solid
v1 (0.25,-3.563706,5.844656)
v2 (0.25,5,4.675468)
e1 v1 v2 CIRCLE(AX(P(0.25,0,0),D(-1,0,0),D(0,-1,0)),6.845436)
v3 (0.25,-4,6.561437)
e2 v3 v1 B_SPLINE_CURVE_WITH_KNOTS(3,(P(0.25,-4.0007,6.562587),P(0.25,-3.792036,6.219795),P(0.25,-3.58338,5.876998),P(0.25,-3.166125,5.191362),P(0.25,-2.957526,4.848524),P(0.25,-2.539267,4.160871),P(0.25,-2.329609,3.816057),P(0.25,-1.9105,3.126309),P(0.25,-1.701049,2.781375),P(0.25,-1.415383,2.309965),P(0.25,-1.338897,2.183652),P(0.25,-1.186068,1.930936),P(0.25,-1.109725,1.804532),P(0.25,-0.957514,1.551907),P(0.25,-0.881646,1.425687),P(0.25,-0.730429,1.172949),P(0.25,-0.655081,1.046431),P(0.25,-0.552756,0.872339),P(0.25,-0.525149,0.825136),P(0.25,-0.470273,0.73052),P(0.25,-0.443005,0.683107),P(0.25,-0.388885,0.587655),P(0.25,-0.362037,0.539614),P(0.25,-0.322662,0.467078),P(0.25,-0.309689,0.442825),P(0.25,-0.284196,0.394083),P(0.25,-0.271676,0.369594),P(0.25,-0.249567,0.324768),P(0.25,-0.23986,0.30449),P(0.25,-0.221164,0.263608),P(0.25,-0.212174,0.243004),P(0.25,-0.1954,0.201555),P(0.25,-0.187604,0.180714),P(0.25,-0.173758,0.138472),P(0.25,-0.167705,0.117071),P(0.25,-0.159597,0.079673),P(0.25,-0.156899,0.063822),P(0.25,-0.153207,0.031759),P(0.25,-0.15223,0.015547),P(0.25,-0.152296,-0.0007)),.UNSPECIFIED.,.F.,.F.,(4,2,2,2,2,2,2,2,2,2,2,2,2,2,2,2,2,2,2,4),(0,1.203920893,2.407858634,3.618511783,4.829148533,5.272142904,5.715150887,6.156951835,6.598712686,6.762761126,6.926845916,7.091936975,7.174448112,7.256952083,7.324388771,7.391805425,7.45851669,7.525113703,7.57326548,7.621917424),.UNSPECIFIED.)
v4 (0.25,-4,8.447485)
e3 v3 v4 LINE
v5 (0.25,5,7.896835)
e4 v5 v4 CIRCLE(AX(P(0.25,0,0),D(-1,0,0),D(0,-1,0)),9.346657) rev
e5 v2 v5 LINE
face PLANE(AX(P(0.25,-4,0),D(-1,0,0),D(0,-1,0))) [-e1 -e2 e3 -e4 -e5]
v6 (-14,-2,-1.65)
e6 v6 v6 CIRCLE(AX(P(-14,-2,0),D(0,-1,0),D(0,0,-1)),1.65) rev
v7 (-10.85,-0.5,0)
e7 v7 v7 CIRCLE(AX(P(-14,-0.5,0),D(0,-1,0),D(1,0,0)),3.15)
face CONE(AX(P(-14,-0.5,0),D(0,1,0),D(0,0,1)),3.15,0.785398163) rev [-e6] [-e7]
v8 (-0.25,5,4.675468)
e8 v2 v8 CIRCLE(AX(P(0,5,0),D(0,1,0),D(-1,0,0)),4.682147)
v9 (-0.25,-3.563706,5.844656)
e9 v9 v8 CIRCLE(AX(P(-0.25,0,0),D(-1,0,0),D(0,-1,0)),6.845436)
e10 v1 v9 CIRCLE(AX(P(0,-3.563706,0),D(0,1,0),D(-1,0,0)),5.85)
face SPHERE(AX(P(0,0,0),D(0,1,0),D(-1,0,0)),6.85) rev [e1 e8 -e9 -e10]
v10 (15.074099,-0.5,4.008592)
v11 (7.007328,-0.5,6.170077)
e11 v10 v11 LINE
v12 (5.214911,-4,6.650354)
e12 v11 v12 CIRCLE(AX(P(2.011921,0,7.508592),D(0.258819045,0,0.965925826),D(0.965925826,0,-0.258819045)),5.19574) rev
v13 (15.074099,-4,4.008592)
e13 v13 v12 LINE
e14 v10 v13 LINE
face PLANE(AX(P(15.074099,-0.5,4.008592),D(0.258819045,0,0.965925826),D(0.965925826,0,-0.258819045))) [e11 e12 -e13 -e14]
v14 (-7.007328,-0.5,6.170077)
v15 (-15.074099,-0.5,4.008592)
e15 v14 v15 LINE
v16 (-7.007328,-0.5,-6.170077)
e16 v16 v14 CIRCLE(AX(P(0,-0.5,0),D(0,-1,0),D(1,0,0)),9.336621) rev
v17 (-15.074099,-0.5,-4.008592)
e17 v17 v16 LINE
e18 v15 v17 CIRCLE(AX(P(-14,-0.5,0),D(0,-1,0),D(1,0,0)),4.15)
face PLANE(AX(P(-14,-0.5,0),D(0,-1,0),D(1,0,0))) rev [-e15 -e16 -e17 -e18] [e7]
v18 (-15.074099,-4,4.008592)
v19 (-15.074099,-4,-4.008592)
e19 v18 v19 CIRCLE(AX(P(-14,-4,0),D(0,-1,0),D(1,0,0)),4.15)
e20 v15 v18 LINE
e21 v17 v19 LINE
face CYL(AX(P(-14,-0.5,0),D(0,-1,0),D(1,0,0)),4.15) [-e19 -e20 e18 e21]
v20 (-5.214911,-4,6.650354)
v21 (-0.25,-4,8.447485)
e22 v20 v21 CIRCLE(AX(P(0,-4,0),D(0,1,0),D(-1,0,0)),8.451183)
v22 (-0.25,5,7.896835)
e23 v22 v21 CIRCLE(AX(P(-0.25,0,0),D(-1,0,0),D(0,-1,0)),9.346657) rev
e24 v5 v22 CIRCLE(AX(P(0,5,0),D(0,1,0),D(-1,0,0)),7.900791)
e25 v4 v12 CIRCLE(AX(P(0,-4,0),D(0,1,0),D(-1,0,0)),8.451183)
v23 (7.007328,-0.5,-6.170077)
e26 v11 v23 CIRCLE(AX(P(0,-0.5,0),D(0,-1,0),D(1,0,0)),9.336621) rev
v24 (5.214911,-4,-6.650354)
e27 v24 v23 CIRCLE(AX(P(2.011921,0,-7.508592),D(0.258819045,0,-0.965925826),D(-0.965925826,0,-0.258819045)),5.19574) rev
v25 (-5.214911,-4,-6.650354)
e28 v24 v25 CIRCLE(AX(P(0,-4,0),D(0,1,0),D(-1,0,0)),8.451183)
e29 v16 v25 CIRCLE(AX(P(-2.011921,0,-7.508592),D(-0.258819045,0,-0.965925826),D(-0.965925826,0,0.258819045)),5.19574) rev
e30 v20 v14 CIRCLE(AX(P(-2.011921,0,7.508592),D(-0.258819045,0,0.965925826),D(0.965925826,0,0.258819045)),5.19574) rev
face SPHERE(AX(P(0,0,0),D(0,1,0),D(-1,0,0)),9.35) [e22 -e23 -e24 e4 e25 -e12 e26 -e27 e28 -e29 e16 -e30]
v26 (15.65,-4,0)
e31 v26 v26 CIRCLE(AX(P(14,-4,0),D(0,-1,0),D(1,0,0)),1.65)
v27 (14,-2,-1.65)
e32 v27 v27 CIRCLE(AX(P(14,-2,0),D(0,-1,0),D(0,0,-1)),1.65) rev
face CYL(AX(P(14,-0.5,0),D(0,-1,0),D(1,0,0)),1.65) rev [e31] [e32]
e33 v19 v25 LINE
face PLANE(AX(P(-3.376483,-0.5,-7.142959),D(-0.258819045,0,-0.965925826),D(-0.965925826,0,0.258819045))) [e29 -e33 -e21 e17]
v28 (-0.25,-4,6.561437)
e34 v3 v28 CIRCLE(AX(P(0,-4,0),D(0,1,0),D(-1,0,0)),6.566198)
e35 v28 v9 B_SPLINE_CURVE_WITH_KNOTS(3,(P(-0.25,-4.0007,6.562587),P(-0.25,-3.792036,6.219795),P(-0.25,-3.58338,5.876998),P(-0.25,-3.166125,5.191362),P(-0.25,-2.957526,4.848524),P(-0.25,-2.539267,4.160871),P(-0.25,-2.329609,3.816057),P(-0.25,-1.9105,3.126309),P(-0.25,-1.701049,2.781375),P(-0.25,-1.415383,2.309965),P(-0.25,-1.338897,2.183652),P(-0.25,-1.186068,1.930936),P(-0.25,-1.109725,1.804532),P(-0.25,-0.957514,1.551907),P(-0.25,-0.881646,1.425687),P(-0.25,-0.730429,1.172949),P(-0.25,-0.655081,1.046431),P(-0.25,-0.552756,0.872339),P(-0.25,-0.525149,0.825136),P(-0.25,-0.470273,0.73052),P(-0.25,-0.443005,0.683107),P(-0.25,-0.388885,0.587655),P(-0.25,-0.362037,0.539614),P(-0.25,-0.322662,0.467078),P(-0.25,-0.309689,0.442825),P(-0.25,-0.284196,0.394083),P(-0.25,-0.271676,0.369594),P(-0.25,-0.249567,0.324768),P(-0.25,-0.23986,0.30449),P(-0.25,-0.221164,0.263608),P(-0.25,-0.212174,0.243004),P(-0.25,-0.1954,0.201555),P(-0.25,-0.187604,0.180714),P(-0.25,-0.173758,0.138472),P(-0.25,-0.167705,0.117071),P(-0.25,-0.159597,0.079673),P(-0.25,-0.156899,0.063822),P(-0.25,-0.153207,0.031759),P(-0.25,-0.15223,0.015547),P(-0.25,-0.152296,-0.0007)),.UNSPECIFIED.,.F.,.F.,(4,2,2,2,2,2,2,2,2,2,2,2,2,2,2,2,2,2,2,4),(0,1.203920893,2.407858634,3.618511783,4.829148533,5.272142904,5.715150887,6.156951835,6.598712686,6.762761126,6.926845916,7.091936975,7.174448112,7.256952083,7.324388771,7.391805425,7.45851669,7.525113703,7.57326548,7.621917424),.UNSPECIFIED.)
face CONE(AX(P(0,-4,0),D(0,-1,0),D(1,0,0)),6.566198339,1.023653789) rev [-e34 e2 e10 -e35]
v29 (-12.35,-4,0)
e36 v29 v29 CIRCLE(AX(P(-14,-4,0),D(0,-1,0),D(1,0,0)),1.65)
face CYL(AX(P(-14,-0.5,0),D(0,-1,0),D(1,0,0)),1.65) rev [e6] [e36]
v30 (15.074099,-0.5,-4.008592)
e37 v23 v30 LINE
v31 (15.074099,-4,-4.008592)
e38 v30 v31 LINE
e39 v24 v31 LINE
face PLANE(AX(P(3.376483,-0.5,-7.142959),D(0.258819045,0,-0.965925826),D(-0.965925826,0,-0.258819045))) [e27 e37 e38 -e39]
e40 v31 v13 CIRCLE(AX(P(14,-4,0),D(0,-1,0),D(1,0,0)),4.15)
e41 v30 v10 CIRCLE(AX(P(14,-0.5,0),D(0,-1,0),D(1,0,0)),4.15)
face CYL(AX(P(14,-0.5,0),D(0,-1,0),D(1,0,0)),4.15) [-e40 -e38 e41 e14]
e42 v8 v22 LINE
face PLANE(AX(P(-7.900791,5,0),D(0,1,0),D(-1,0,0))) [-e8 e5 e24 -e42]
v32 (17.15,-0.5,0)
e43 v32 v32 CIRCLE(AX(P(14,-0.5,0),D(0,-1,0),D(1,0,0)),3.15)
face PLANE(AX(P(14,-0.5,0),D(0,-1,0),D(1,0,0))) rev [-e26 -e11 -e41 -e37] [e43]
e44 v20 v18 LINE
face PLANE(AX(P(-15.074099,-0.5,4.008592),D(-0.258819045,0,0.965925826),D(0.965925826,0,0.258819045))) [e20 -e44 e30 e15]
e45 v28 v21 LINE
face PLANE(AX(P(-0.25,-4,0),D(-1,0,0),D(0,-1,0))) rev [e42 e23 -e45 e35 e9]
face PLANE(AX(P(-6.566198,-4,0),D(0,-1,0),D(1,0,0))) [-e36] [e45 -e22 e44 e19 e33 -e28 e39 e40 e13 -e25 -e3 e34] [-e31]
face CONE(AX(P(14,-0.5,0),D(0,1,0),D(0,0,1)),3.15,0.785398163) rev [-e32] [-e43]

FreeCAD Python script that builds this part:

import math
import FreeCAD as App
import Part
import Sketcher

V = App.Vector
Q = App.Units.Quantity


def edges_at(feature, points):
    """Names of the edges that pass closest to the given points."""
    edges = feature.Shape.Edges
    near = lambda p: min(range(len(edges)), key=lambda i: edges[i].distToShape(Part.Vertex(*p))[0])
    return sorted({f"Edge{near(p) + 1}" for p in points})


def add_polygon(sketch, points):
    """Adds a closed chain of lines whose ends are joined by coincident constraints."""
    first, n = sketch.GeometryCount, len(points)
    for a, b in zip(points, points[1:] + points[:1]):
        sketch.addGeometry(Part.LineSegment(App.Vector(*a, 0), App.Vector(*b, 0)), False)
    for i in range(n):
        sketch.addConstraint(Sketcher.Constraint("Coincident", first + i, 2, first + (i + 1) % n, 1))

doc = App.newDocument("Part")
body = doc.addObject("PartDesign::Body", "Body")

sketch1 = body.newObject("Sketcher::SketchObject", "Sketch")
sketch1.AttachmentSupport = (doc.getObject("XY_Plane"), [""])
sketch1.MapMode = "FlatFace"
sketch1.addGeometry([
    Part.LineSegment(V(-6.6, -4, 0), V(-5.8, -3.6, 0)),
    Part.ArcOfCircle(Part.Circle(V(0, 0, 0), V(0, 0, 1), 6.8), math.radians(133), math.radians(211)),
    Part.LineSegment(V(-4.7, 5, 0), V(-7.9, 5, 0)),
    Part.ArcOfCircle(Part.Circle(V(0, 0, 0), V(0, 0, 1), 9.4), math.radians(148), math.radians(205)),
    Part.LineSegment(V(-8.5, -4, 0), V(-6.6, -4, 0)),
], False)
sketch1.addConstraint([
    Sketcher.Constraint("Coincident", 0, 2, 1, 2),
    Sketcher.Constraint("Coincident", 1, 1, 2, 1),
    Sketcher.Constraint("Coincident", 2, 2, 3, 1),
    Sketcher.Constraint("Coincident", 3, 2, 4, 1),
    Sketcher.Constraint("Coincident", 4, 2, 0, 1),
    Sketcher.Constraint("Horizontal", 2),
    Sketcher.Constraint("Horizontal", 4),
    Sketcher.Constraint("Coincident", 1, 3, -1, 1),
    Sketcher.Constraint("Coincident", 3, 3, -1, 1),
    Sketcher.Constraint("Radius", 1, Q("6.85 mm")),
    Sketcher.Constraint("Radius", 3, Q("9.35 mm")),
    Sketcher.Constraint("DistanceY", -1, 1, 1, 1, Q("5 mm")),
    Sketcher.Constraint("DistanceY", 3, 2, -1, 1, Q("4 mm")),
    Sketcher.Constraint("DistanceX", 0, 2, -1, 1, Q("5.85 mm")),
    Sketcher.Constraint("DistanceX", 4, 2, -1, 1, Q("6.566198 mm")),
])
revolution = body.newObject("PartDesign::Revolution", "Revolution")
revolution.Profile = sketch1
revolution.ReferenceAxis = (sketch1, ["V_Axis"])
revolution.Angle = 360

sketch2 = body.newObject("Sketcher::SketchObject", "Sketch001")
sketch2.AttachmentSupport = (doc.getObject("XZ_Plane"), [""])
sketch2.MapMode = "FlatFace"
sketch2.AttachmentOffset = App.Placement(V(0, 0, 4), App.Rotation())
sketch2.addGeometry([
    Part.LineSegment(V(-3.4, 7.1, 0), V(-15.1, 4, 0)),
    Part.ArcOfCircle(Part.Circle(V(-14, 0, 0), V(0, 0, 1), 4.2), math.radians(105), math.radians(255)),
    Part.LineSegment(V(-15.1, -4, 0), V(-3.4, -7.1, 0)),
    Part.ArcOfCircle(Part.Circle(V(0, 0, 0), V(0, 0, 1), 7.9), math.radians(115), math.radians(245)),
    Part.Circle(V(-14, 0, 0), V(0, 0, 1), 1.6),
    Part.LineSegment(V(15.1, 4, 0), V(3.4, 7.1, 0)),
    Part.ArcOfCircle(Part.Circle(V(0, 0, 0), V(0, 0, 1), 7.9), math.radians(-65), math.radians(65)),
    Part.LineSegment(V(3.4, -7.1, 0), V(15.1, -4, 0)),
    Part.ArcOfCircle(Part.Circle(V(14, 0, 0), V(0, 0, 1), 4.2), math.radians(-75), math.radians(75)),
    Part.Circle(V(14, 0, 0), V(0, 0, 1), 1.6),
], False)
sketch2.addConstraint([
    Sketcher.Constraint("Tangent", 0, 2, 1, 1),
    Sketcher.Constraint("Tangent", 1, 2, 2, 1),
    Sketcher.Constraint("Coincident", 2, 2, 3, 2),
    Sketcher.Constraint("Coincident", 3, 1, 0, 1),
    Sketcher.Constraint("Coincident", 5, 2, 6, 2),
    Sketcher.Constraint("Coincident", 6, 1, 7, 1),
    Sketcher.Constraint("Tangent", 7, 2, 8, 1),
    Sketcher.Constraint("Tangent", 8, 2, 5, 1),
    Sketcher.Constraint("Coincident", 3, 3, -1, 1),
    Sketcher.Constraint("Coincident", 6, 3, -1, 1),
    Sketcher.Constraint("Coincident", 4, 3, 1, 3),
    Sketcher.Constraint("Coincident", 9, 3, 8, 3),
    Sketcher.Constraint("Equal", 3, 6),
    Sketcher.Constraint("Equal", 1, 8),
    Sketcher.Constraint("Equal", 4, 9),
    Sketcher.Constraint("Symmetric", 1, 3, 8, 3, -1, 1),
    Sketcher.Constraint("Symmetric", 1, 2, 7, 2, -2),
    Sketcher.Constraint("Parallel", 2, 5),
    Sketcher.Constraint("Parallel", 0, 7),
    Sketcher.Constraint("Diameter", 4, Q("3.3 mm")),
    Sketcher.Constraint("Angle", 0, Q("-165 deg")),
    Sketcher.Constraint("Radius", 1, Q("4.15 mm")),
    Sketcher.Constraint("DistanceX", 1, 3, -1, 1, Q("14 mm")),
    Sketcher.Constraint("Radius", 3, Q("7.900791 mm")),
])
pad1 = body.newObject("PartDesign::Pad", "Pad")
pad1.Profile = sketch2
pad1.Length = 3.5
pad1.Reversed = True
doc.recompute()

chamfer = body.newObject("PartDesign::Chamfer", "Chamfer")
chamfer.Base = (pad1, edges_at(pad1, [(12.35, -0.5, 0), (-15.65, -0.5, 0)]))
chamfer.Size = 1.5

sketch3 = body.newObject("Sketcher::SketchObject", "Sketch002")
sketch3.AttachmentSupport = (doc.getObject("XZ_Plane"), [""])
sketch3.MapMode = "FlatFace"
sketch3.AttachmentOffset = App.Placement(V(0, 0, -5), App.Rotation())
add_polygon(sketch3, [(-0.2, 0), (-0.2, 9.3), (0.2, 9.3), (0.2, 0)])
sketch3.addConstraint([
    Sketcher.Constraint("Vertical", 0),
    Sketcher.Constraint("Horizontal", 1),
    Sketcher.Constraint("Vertical", 2),
    Sketcher.Constraint("Horizontal", 3),
    Sketcher.Constraint("Symmetric", 2, 2, 3, 2, -1, 1),
    Sketcher.Constraint("DistanceX", 1, 1, 1, 2, Q("0.5 mm")),
    Sketcher.Constraint("DistanceY", 0, 1, 0, 2, Q("9.35 mm")),
])
pocket1 = body.newObject("PartDesign::Pocket", "Pocket")
pocket1.Profile = sketch3
pocket1.Type = "ThroughAll"
pocket1.Midplane = True

doc.recompute()
